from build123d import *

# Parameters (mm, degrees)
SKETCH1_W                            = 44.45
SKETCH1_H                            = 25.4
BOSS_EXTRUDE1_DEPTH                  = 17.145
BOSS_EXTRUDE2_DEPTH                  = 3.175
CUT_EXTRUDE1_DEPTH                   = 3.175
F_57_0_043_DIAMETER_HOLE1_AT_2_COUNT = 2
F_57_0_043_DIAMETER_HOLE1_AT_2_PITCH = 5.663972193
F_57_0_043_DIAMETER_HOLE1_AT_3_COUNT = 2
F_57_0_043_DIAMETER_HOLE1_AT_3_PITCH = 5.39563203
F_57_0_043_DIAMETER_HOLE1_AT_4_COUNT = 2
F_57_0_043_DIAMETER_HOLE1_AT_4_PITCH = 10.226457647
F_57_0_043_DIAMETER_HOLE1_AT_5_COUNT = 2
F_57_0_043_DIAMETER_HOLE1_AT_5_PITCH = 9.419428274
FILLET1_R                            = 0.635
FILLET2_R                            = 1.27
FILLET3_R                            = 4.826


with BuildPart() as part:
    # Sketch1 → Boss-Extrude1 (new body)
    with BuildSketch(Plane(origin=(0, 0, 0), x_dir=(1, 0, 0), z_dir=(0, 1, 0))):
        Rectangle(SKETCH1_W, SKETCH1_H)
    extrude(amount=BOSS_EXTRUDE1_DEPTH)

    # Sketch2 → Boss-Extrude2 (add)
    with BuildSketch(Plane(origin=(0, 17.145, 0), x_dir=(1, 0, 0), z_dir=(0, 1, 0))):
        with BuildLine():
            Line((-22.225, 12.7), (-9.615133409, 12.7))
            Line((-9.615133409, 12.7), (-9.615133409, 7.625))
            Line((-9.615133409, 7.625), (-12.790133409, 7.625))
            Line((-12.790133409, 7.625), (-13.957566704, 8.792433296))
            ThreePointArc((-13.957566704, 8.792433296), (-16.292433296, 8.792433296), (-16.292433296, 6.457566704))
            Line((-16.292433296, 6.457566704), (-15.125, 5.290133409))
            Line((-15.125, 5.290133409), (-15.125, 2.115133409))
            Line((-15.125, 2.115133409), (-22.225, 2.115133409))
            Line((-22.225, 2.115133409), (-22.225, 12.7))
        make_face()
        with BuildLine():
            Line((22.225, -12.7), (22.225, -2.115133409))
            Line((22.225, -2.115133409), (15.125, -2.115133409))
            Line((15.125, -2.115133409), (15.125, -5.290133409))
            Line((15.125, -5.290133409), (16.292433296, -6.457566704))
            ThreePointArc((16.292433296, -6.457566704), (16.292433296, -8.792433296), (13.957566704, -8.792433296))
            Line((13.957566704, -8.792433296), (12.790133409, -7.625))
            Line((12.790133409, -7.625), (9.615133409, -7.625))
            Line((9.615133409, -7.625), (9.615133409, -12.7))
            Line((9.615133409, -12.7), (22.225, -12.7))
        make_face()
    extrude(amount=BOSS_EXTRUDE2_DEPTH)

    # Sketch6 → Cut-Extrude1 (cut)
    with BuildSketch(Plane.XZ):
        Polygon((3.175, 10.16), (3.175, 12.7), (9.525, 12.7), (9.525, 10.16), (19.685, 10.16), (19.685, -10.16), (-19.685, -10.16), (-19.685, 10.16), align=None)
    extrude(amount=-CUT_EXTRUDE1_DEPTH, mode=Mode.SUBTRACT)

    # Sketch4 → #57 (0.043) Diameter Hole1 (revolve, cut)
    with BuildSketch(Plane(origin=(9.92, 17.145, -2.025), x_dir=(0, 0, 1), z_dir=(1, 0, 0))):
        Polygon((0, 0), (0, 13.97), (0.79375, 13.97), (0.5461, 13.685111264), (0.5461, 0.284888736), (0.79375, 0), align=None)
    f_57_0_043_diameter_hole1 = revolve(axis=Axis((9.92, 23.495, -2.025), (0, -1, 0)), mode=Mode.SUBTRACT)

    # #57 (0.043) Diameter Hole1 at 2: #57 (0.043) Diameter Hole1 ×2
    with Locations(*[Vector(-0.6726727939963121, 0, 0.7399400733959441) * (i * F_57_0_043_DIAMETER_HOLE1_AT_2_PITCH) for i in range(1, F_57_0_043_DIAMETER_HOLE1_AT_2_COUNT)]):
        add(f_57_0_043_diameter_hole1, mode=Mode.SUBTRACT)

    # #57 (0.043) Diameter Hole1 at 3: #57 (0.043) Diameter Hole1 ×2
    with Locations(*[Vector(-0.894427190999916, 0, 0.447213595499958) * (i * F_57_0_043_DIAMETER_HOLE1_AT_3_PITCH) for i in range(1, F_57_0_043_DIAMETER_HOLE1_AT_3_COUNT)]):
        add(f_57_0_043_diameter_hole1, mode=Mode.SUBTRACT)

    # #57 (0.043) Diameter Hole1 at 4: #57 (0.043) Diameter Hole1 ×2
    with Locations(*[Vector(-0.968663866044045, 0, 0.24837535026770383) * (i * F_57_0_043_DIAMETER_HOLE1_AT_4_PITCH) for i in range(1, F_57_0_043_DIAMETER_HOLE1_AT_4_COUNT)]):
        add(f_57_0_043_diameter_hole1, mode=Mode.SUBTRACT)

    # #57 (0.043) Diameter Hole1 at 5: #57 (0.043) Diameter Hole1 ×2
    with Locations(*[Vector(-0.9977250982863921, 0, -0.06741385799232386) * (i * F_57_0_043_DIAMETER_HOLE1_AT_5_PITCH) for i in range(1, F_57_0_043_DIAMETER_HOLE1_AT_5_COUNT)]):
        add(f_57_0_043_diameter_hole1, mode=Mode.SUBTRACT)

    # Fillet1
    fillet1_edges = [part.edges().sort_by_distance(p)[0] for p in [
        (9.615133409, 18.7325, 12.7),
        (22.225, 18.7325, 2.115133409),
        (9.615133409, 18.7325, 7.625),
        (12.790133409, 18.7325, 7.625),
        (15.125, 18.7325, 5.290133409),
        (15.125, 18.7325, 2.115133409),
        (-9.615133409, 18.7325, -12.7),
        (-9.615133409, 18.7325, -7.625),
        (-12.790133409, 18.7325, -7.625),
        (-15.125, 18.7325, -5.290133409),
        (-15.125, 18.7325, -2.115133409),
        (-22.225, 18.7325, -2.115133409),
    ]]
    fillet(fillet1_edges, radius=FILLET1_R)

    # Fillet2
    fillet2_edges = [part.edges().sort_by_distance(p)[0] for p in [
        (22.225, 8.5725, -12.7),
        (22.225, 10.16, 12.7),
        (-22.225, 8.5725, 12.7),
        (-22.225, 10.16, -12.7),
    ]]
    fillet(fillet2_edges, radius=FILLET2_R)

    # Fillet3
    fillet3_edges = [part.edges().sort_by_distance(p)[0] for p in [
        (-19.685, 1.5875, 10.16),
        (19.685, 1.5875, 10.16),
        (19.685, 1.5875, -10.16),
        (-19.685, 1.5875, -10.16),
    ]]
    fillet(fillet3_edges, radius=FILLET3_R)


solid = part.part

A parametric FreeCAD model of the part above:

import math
import FreeCAD as App
import Part
import Sketcher
from FreeCAD import Vector
Q = App.Units.Quantity


def edges_at(feature, points):
    """Names of the edges that pass closest to the given points."""
    edges = feature.Shape.Edges
    near = lambda p: min(range(len(edges)), key=lambda i: edges[i].distToShape(Part.Vertex(*p))[0])
    return sorted({f"Edge{near(p) + 1}" for p in points})


def add_polygon(sketch, points):
    """Adds a closed chain of lines whose ends are joined by coincident constraints."""
    first, n = sketch.GeometryCount, len(points)
    for a, b in zip(points, points[1:] + points[:1]):
        sketch.addGeometry(Part.LineSegment(App.Vector(*a, 0), App.Vector(*b, 0)), False)
    for i in range(n):
        sketch.addConstraint(Sketcher.Constraint("Coincident", first + i, 2, first + (i + 1) % n, 1))

doc = App.newDocument("Part")
body = doc.addObject("PartDesign::Body", "Body")

# Sketch on XZ plane
sketch1 = body.newObject("Sketcher::SketchObject", "Sketch")
sketch1.AttachmentSupport = (doc.getObject("XZ_Plane"), [""])
sketch1.MapMode = "FlatFace"
add_polygon(sketch1, [(-22.225, -12.7), (-22.225, 12.7), (22.225, 12.7), (22.225, -12.7)])  # lines 0-3
sketch1.addConstraint([
    Sketcher.Constraint("Vertical", 0),
    Sketcher.Constraint("Horizontal", 1),
    Sketcher.Constraint("Vertical", 2),
    Sketcher.Constraint("Horizontal", 3),
    Sketcher.Constraint("Symmetric", 0, 2, 2, 2, -1, 1),
    Sketcher.Constraint("DistanceY", 0, 1, 0, 2, Q("1 in")),
    Sketcher.Constraint("DistanceX", 1, 1, 1, 2, Q("1.75 in")),
])
pad1 = body.newObject("PartDesign::Pad", "Pad")
pad1.Profile = sketch1
pad1.Length = Q("0.675 in")
pad1.Reversed = True

# Sketch on XZ plane
sketch2 = body.newObject("Sketcher::SketchObject", "Sketch001")
sketch2.AttachmentSupport = (doc.getObject("XZ_Plane"), [""])
sketch2.MapMode = "FlatFace"
sketch2.AttachmentOffset = App.Placement(Vector(0, 0, -0.675 * 25.4), App.Rotation())
sketch2.addGeometry([
    Part.LineSegment(Vector(-9.615133, -12.7, 0), Vector(-22.225, -12.7, 0)),  # 0
    Part.LineSegment(Vector(-22.225, -12.7, 0), Vector(-22.225, -2.115133, 0)),  # 1
    Part.LineSegment(Vector(-22.225, -2.115133, 0), Vector(-15.125, -2.115133, 0)),  # 2
    Part.LineSegment(Vector(-15.125, -2.115133, 0), Vector(-15.125, -5.290133, 0)),  # 3
    Part.LineSegment(Vector(-15.125, -5.290133, 0), Vector(-16.292433, -6.457567, 0)),  # 4
    Part.ArcOfCircle(Part.Circle(Vector(-15.125, -7.625, 0), Vector(0, 0, 1), 1.651), math.radians(135), math.radians(315)),  # 5
    Part.LineSegment(Vector(-13.957567, -8.792433, 0), Vector(-12.790133, -7.625, 0)),  # 6
    Part.LineSegment(Vector(-12.790133, -7.625, 0), Vector(-9.615133, -7.625, 0)),  # 7
    Part.LineSegment(Vector(-9.615133, -7.625, 0), Vector(-9.615133, -12.7, 0)),  # 8
    Part.LineSegment(Vector(22.225, 12.7, 0), Vector(22.225, 2.115133, 0)),  # 9
    Part.LineSegment(Vector(22.225, 2.115133, 0), Vector(15.125, 2.115133, 0)),  # 10
    Part.LineSegment(Vector(15.125, 2.115133, 0), Vector(15.125, 5.290133, 0)),  # 11
    Part.LineSegment(Vector(15.125, 5.290133, 0), Vector(16.292433, 6.457567, 0)),  # 12
    Part.ArcOfCircle(Part.Circle(Vector(15.125, 7.625, 0), Vector(0, 0, 1), 1.651), math.radians(-45), math.radians(135)),  # 13
    Part.LineSegment(Vector(13.957567, 8.792433, 0), Vector(12.790133, 7.625, 0)),  # 14
    Part.LineSegment(Vector(12.790133, 7.625, 0), Vector(9.615133, 7.625, 0)),  # 15
    Part.LineSegment(Vector(9.615133, 7.625, 0), Vector(9.615133, 12.7, 0)),  # 16
    Part.LineSegment(Vector(9.615133, 12.7, 0), Vector(22.225, 12.7, 0)),  # 17
], False)
sketch2.addConstraint([
    Sketcher.Constraint("Coincident", 0, 2, 1, 1),
    Sketcher.Constraint("Coincident", 1, 2, 2, 1),
    Sketcher.Constraint("Coincident", 2, 2, 3, 1),
    Sketcher.Constraint("Coincident", 3, 2, 4, 1),
    Sketcher.Constraint("Tangent", 4, 2, 5, 1),
    Sketcher.Constraint("Tangent", 5, 2, 6, 1),
    Sketcher.Constraint("Coincident", 6, 2, 7, 1),
    Sketcher.Constraint("Coincident", 7, 2, 8, 1),
    Sketcher.Constraint("Coincident", 8, 2, 0, 1),
    Sketcher.Constraint("Coincident", 9, 2, 10, 1),
    Sketcher.Constraint("Coincident", 10, 2, 11, 1),
    Sketcher.Constraint("Coincident", 11, 2, 12, 1),
    Sketcher.Constraint("Tangent", 12, 2, 13, 1),
    Sketcher.Constraint("Tangent", 13, 2, 14, 1),
    Sketcher.Constraint("Coincident", 14, 2, 15, 1),
    Sketcher.Constraint("Coincident", 15, 2, 16, 1),
    Sketcher.Constraint("Coincident", 16, 2, 17, 1),
    Sketcher.Constraint("Coincident", 17, 2, 9, 1),
    Sketcher.Constraint("Horizontal", 0),
    Sketcher.Constraint("Vertical", 1),
    Sketcher.Constraint("Horizontal", 2),
    Sketcher.Constraint("Vertical", 3),
    Sketcher.Constraint("Horizontal", 7),
    Sketcher.Constraint("Vertical", 8),
    Sketcher.Constraint("Vertical", 9),
    Sketcher.Constraint("Horizontal", 10),
    Sketcher.Constraint("Vertical", 11),
    Sketcher.Constraint("Horizontal", 15),
    Sketcher.Constraint("Vertical", 16),
    Sketcher.Constraint("Horizontal", 17),
    Sketcher.Constraint("Equal", 5, 13),
    Sketcher.Constraint("Symmetric", 5, 3, 13, 3, -1, 1),
    Sketcher.Constraint("Symmetric", 1, 2, 9, 2, -1, 1),
    Sketcher.Constraint("Symmetric", 3, 2, 11, 2, -1, 1),
    Sketcher.Constraint("Symmetric", 6, 2, 14, 2, -1, 1),
    Sketcher.Constraint("Symmetric", 8, 2, 16, 2, -1, 1),
    Sketcher.Constraint("Parallel", 4, 6),
    Sketcher.Constraint("Horizontal", 5, 3, 6, 2),
    Sketcher.Constraint("Vertical", 5, 3, 2, 2),
    Sketcher.Constraint("Equal", 15, 3),
    Sketcher.Constraint("Equal", 4, 6),
    Sketcher.Constraint("Radius", 5, Q("0.065 in")),
    Sketcher.Constraint("DistanceY", 0, 2, -1, 1, Q("0.5 in")),
    Sketcher.Constraint("DistanceX", 7, 1, 7, 2, Q("0.125 in")),
    Sketcher.Constraint("DistanceX", 0, 2, -1, 1, Q("0.875 in")),
    Sketcher.Constraint("DistanceX", 2, 1, 2, 2, 7.1),
    Sketcher.Constraint("DistanceY", 8, 2, 8, 1, 5.075),
])
pad2 = body.newObject("PartDesign::Pad", "Pad001")
pad2.Profile = sketch2
pad2.Length = Q("0.125 in")
pad2.Reversed = True

# Sketch on XZ plane
sketch3 = body.newObject("Sketcher::SketchObject", "Sketch002")
sketch3.AttachmentSupport = (doc.getObject("XZ_Plane"), [""])
sketch3.MapMode = "FlatFace"
add_polygon(sketch3, [(3.175, 12.7), (3.175, 10.16), (-19.685, 10.16), (-19.685, -10.16), (19.685, -10.16), (19.685, 10.16), (9.525, 10.16), (9.525, 12.7)])  # lines 0-7
sketch3.addConstraint([
    Sketcher.Constraint("Vertical", 0),
    Sketcher.Constraint("Horizontal", 1),
    Sketcher.Constraint("Vertical", 2),
    Sketcher.Constraint("Horizontal", 3),
    Sketcher.Constraint("Vertical", 4),
    Sketcher.Constraint("Horizontal", 5),
    Sketcher.Constraint("Vertical", 6),
    Sketcher.Constraint("Horizontal", 7),
    Sketcher.Constraint("Symmetric", 1, 2, 3, 2, -1, 1),
    Sketcher.Constraint("Horizontal", 1, 2, 4, 2),
    Sketcher.Constraint("DistanceX", 1, 2, 1, 1, Q("0.9 in")),
    Sketcher.Constraint("DistanceX", 5, 2, 5, 1, Q("0.4 in")),
    Sketcher.Constraint("DistanceY", 0, 2, 0, 1, Q("0.1 in")),
    Sketcher.Constraint("DistanceY", 2, 2, 2, 1, Q("0.8 in")),
    Sketcher.Constraint("DistanceX", 3, 1, 3, 2, Q("1.55 in")),
])
pocket1 = body.newObject("PartDesign::Pocket", "Pocket")
pocket1.Profile = sketch3
pocket1.Length = Q("0.125 in")

# Sketch on YZ plane
sketch4 = body.newObject("Sketcher::SketchObject", "Sketch003")
sketch4.AttachmentSupport = (doc.getObject("YZ_Plane"), [""])
sketch4.MapMode = "FlatFace"
sketch4.AttachmentOffset = App.Placement(Vector(0, 0, 9.92), App.Rotation())
add_polygon(sketch4, [(3.175, -2.025), (17.145, -2.025), (17.145, -1.23125), (16.860111, -1.4789), (3.459889, -1.4789), (3.175, -1.23125)])  # lines 0-5
sketch4.addGeometry(Part.LineSegment(Vector(17.145, -2.025, 0), Vector(3.175, -2.025, 0)), True)  # axis
sketch4.addConstraint([
    Sketcher.Constraint("Horizontal", 0),
    Sketcher.Constraint("Vertical", 1),
    Sketcher.Constraint("Horizontal", 3),
    Sketcher.Constraint("Vertical", 5),
    Sketcher.Constraint("Horizontal", 6),
    Sketcher.Constraint("Coincident", 6, 1, 0, 2),
    Sketcher.Constraint("Horizontal", 1, 2, 4, 2),
    Sketcher.Constraint("Vertical", 4, 2, 6, 2),
    Sketcher.Constraint("Equal", 2, 4),
    Sketcher.Constraint("Angle", 2, Q("-139 deg")),
    Sketcher.Constraint("DistanceX", 0, 1, 0, 2, Q("0.55 in")),
    Sketcher.Constraint("DistanceY", 1, 1, 1, 2, Q("0.03125 in")),
    Sketcher.Constraint("DistanceX", -1, 1, 0, 2, Q("0.675 in")),
    Sketcher.Constraint("DistanceY", 0, 2, 2, 2, Q("0.0215 in")),
    Sketcher.Constraint("DistanceY", 0, 2, -1, 1, 2.025),
])
groove = body.newObject("PartDesign::Groove", "Groove")
groove.Profile = sketch4
groove.ReferenceAxis = (sketch4, ["Axis0"])
groove.Angle = 360
doc.recompute()

datumline = body.newObject("PartDesign::Line", "DatumLine")
datumline.Placement = App.Placement(Vector(0, 0, 0), App.Rotation(Vector(0, 0, 1), Vector(-0.672672794, 0, 0.739940073)))
linearpattern = body.newObject("PartDesign::LinearPattern", "LinearPattern")
linearpattern.Originals = [groove]
linearpattern.Direction = (datumline, [""])
linearpattern.Mode = "offset"
linearpattern.Offset = 5.663972
linearpattern.Occurrences = 2
body.Tip = linearpattern
doc.recompute()

datumline2 = body.newObject("PartDesign::Line", "DatumLine001")
datumline2.Placement = App.Placement(Vector(0, 0, 0), App.Rotation(Vector(0, 0, 1), Vector(-0.894427191, 0, 0.447213595)))
linearpattern2 = body.newObject("PartDesign::LinearPattern", "LinearPattern001")
linearpattern2.Originals = [groove]
linearpattern2.Direction = (datumline2, [""])
linearpattern2.Mode = "offset"
linearpattern2.Offset = 5.395632
linearpattern2.Occurrences = 2
body.Tip = linearpattern2
doc.recompute()

datumline3 = body.newObject("PartDesign::Line", "DatumLine002")
datumline3.Placement = App.Placement(Vector(0, 0, 0), App.Rotation(Vector(0, 0, 1), Vector(-0.968663866, 0, 0.24837535)))
linearpattern3 = body.newObject("PartDesign::LinearPattern", "LinearPattern002")
linearpattern3.Originals = [groove]
linearpattern3.Direction = (datumline3, [""])
linearpattern3.Mode = "offset"
linearpattern3.Offset = 10.226458
linearpattern3.Occurrences = 2
body.Tip = linearpattern3
doc.recompute()

datumline4 = body.newObject("PartDesign::Line", "DatumLine003")
datumline4.Placement = App.Placement(Vector(0, 0, 0), App.Rotation(Vector(0, 0, 1), Vector(-0.997725098, 0, -0.067413858)))
linearpattern4 = body.newObject("PartDesign::LinearPattern", "LinearPattern003")
linearpattern4.Originals = [groove]
linearpattern4.Direction = (datumline4, [""])
linearpattern4.Mode = "offset"
linearpattern4.Offset = 9.419428
linearpattern4.Occurrences = 2
body.Tip = linearpattern4
doc.recompute()

fillet = body.newObject("PartDesign::Fillet", "Fillet")
fillet.Base = (linearpattern4, edges_at(linearpattern4, [
    (9.615, 18.733, 12.7),
    (22.225, 18.733, 2.115),
    (9.615, 18.733, 7.625),
    (12.79, 18.733, 7.625),
    (15.125, 18.733, 5.29),
    (15.125, 18.733, 2.115),
    (-9.615, 18.733, -12.7),
    (-9.615, 18.733, -7.625),
    (-12.79, 18.733, -7.625),
    (-15.125, 18.733, -5.29),
    (-15.125, 18.733, -2.115),
    (-22.225, 18.733, -2.115),
]))
fillet.Radius = Q("0.025 in")
doc.recompute()

fillet2 = body.newObject("PartDesign::Fillet", "Fillet001")
fillet2.Base = (fillet, edges_at(fillet, [
    (22.225, 8.572, -12.7),
    (22.225, 10.16, 12.7),
    (-22.225, 8.572, 12.7),
    (-22.225, 10.16, -12.7),
]))
fillet2.Radius = Q("0.05 in")
doc.recompute()

fillet3 = body.newObject("PartDesign::Fillet", "Fillet002")
fillet3.Base = (fillet2, edges_at(fillet2, [
    (-19.685, 1.587, 10.16),
    (19.685, 1.587, 10.16),
    (19.685, 1.587, -10.16),
    (-19.685, 1.587, -10.16),
]))
fillet3.Radius = Q("0.19 in")

doc.recompute()
